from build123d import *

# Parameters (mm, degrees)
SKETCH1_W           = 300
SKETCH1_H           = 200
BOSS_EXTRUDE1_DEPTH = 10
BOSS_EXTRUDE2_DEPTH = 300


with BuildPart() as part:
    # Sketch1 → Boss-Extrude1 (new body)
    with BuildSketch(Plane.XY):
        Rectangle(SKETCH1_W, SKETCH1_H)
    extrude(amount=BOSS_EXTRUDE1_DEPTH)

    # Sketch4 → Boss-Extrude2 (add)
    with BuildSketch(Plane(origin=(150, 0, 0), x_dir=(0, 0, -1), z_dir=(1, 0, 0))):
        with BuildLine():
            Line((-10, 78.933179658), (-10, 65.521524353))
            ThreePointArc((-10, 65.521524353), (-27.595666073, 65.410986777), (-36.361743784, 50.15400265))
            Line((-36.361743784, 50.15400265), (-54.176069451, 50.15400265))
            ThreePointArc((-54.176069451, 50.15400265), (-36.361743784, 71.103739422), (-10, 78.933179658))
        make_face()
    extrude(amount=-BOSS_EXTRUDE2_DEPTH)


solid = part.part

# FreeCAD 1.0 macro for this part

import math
import FreeCAD as App
import Part
import Sketcher
from FreeCAD import Vector
Q = App.Units.Quantity

doc = App.newDocument("Part")
body = doc.addObject("PartDesign::Body", "Body")

# Sketch on XY plane
sketch1 = body.newObject("Sketcher::SketchObject", "Sketch")
sketch1.AttachmentSupport = (doc.getObject("XY_Plane"), [""])
sketch1.MapMode = "FlatFace"
sketch1.addGeometry([
    Part.LineSegment(Vector(-150, 100, 0), Vector(-150, -100, 0)),
    Part.LineSegment(Vector(-150, -100, 0), Vector(150, -100, 0)),
    Part.LineSegment(Vector(150, -100, 0), Vector(150, 100, 0)),
    Part.LineSegment(Vector(150, 100, 0), Vector(-150, 100, 0)),
], False)
sketch1.addConstraint([
    Sketcher.Constraint("Coincident", 0, 2, 1, 1),
    Sketcher.Constraint("Coincident", 1, 2, 2, 1),
    Sketcher.Constraint("Coincident", 2, 2, 3, 1),
    Sketcher.Constraint("Coincident", 3, 2, 0, 1),
    Sketcher.Constraint("Vertical", 0),
    Sketcher.Constraint("Horizontal", 1),
    Sketcher.Constraint("Vertical", 2),
    Sketcher.Constraint("Horizontal", 3),
    Sketcher.Constraint("Symmetric", 0, 2, 2, 2, -1, 1),
    Sketcher.Constraint("DistanceX", 1, 1, 1, 2, Q("300 mm")),
    Sketcher.Constraint("DistanceY", 0, 2, 0, 1, Q("200 mm")),
])
pad1 = body.newObject("PartDesign::Pad", "Pad")
pad1.Profile = sketch1
pad1.Length = 10

# Sketch on YZ plane
sketch2 = body.newObject("Sketcher::SketchObject", "Sketch001")
sketch2.AttachmentSupport = (doc.getObject("YZ_Plane"), [""])
sketch2.MapMode = "FlatFace"
sketch2.AttachmentOffset = App.Placement(Vector(0, 0, 150), App.Rotation())
sketch2.addGeometry([
    Part.LineSegment(Vector(66, 10, 0), Vector(79, 10, 0)),
    Part.ArcOfCircle(Part.Circle(Vector(31, 10, 0), Vector(0, 0, 1), 48), math.radians(0), math.radians(66)),
    Part.LineSegment(Vector(50, 54, 0), Vector(50, 36, 0)),
    Part.ArcOfCircle(Part.Circle(Vector(50, 19, 0), Vector(0, 0, 1), 18), math.radians(-30), math.radians(90)),
], False)
sketch2.addConstraint([
    Sketcher.Constraint("Coincident", 0, 2, 1, 1),
    Sketcher.Constraint("Coincident", 1, 2, 2, 1),
    Sketcher.Constraint("Coincident", 2, 2, 3, 2),
    Sketcher.Constraint("Coincident", 3, 1, 0, 1),
    Sketcher.Constraint("Horizontal", 0),
    Sketcher.Constraint("Vertical", 2),
    Sketcher.Constraint("Horizontal", 1, 3, 0, 2),
    Sketcher.Constraint("Vertical", 3, 3, 1, 2),
    Sketcher.Constraint("DistanceY", -1, 1, 1, 3, Q("10 mm")),
    Sketcher.Constraint("Radius", 1, Q("48.294747 mm")),
    Sketcher.Constraint("Radius", 3, Q("17.660104 mm")),
    Sketcher.Constraint("DistanceX", 0, 1, 0, 2, Q("13.411655 mm")),
    Sketcher.Constraint("DistanceY", 2, 2, 2, 1, Q("17.814326 mm")),
    Sketcher.Constraint("DistanceX", -1, 1, 0, 2, Q("78.93318 mm")),
])
pad2 = body.newObject("PartDesign::Pad", "Pad001")
pad2.Profile = sketch2
pad2.Length = 300
pad2.Reversed = True

doc.recompute()
